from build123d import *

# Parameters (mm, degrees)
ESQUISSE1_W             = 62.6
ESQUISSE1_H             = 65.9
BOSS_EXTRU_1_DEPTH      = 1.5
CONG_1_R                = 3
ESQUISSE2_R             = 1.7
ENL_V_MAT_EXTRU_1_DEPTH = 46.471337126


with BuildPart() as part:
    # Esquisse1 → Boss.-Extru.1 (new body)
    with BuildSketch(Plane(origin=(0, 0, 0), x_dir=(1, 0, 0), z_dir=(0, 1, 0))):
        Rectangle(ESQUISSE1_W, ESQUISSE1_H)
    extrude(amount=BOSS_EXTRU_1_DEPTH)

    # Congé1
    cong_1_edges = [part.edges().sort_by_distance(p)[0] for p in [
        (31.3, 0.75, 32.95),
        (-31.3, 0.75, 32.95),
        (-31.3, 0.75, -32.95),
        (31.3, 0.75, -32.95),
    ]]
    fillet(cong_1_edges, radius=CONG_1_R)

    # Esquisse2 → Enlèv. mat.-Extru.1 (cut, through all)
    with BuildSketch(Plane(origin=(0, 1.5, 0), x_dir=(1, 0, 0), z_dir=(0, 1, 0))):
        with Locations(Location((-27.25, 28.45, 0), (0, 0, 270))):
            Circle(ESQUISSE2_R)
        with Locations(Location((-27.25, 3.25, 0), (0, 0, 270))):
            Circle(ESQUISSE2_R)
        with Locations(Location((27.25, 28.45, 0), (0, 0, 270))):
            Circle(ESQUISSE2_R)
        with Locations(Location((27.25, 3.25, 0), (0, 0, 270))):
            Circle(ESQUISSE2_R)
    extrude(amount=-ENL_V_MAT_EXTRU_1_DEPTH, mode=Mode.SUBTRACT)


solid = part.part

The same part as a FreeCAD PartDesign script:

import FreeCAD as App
import Part
import Sketcher
Q = App.Units.Quantity


def edges_at(feature, points):
    """Names of the edges that pass closest to the given points."""
    edges = feature.Shape.Edges
    near = lambda p: min(range(len(edges)), key=lambda i: edges[i].distToShape(Part.Vertex(*p))[0])
    return sorted({f"Edge{near(p) + 1}" for p in points})


def add_polygon(sketch, points):
    """Adds a closed chain of lines whose ends are joined by coincident constraints."""
    first, n = sketch.GeometryCount, len(points)
    for a, b in zip(points, points[1:] + points[:1]):
        sketch.addGeometry(Part.LineSegment(App.Vector(*a, 0), App.Vector(*b, 0)), False)
    for i in range(n):
        sketch.addConstraint(Sketcher.Constraint("Coincident", first + i, 2, first + (i + 1) % n, 1))

doc = App.newDocument("Part")
params = doc.addObject("Spreadsheet::Sheet", "Params")
for row, (alias, value) in enumerate([
    ("sketch1_width", "62.6 mm"),
    ("sketch1_height", "65.9 mm"),
    ("pad1_length", "1.5 mm"),
    ("fillet_radius", "3 mm"),
    ("sketch2_diameter", "3.4 mm"),
], start=1):
    params.set(f"A{row}", alias)
    params.set(f"B{row}", "=" + value)
    params.setAlias(f"B{row}", alias)

body = doc.addObject("PartDesign::Body", "Body")

# Sketch on XZ plane
sketch1 = body.newObject("Sketcher::SketchObject", "Sketch")
sketch1.AttachmentSupport = (doc.getObject("XZ_Plane"), [""])
sketch1.MapMode = "FlatFace"
add_polygon(sketch1, [(-31, -33), (-31, 33), (31, 33), (31, -33)])  # lines 0-3
sketch1.addConstraint(Sketcher.Constraint("Vertical", 0))
sketch1.addConstraint(Sketcher.Constraint("Horizontal", 1))
sketch1.addConstraint(Sketcher.Constraint("Vertical", 2))
sketch1.addConstraint(Sketcher.Constraint("Horizontal", 3))
sketch1.addConstraint(Sketcher.Constraint("Symmetric", 0, 2, 2, 2, -1, 1))
sketch1.addConstraint(Sketcher.Constraint("DistanceX", 1, 1, 1, 2, Q("62.6 mm")))
sketch1.addConstraint(Sketcher.Constraint("DistanceY", 0, 1, 0, 2, Q("65.9 mm")))
sketch1.setExpression("Constraints[9]", "Params.sketch1_width")
sketch1.setExpression("Constraints[10]", "Params.sketch1_height")
pad1 = body.newObject("PartDesign::Pad", "Pad")
pad1.Profile = sketch1
pad1.setExpression("Length", "Params.pad1_length")
pad1.Reversed = True
doc.recompute()

fillet = body.newObject("PartDesign::Fillet", "Fillet")
fillet.Base = (pad1, edges_at(pad1, [
    (31.3, 0.75, 32.95),
    (-31.3, 0.75, 32.95),
    (-31.3, 0.75, -32.95),
    (31.3, 0.75, -32.95),
]))
fillet.setExpression("Radius", "Params.fillet_radius")

# Sketch on XZ plane
sketch2 = body.newObject("Sketcher::SketchObject", "Sketch001")
sketch2.AttachmentSupport = (doc.getObject("XZ_Plane"), [""])
sketch2.MapMode = "FlatFace"
sketch2.AttachmentOffset = App.Placement(App.Vector(0, 0, -1.5), App.Rotation())
sketch2.addGeometry(Part.Circle(App.Vector(-27.2, -28.4, 0), App.Vector(0, 0, 1), 1.7), False)
sketch2.addGeometry(Part.Circle(App.Vector(-27.2, -3.2, 0), App.Vector(0, 0, 1), 1.7), False)
sketch2.addGeometry(Part.Circle(App.Vector(27.2, -28.4, 0), App.Vector(0, 0, 1), 1.7), False)
sketch2.addGeometry(Part.Circle(App.Vector(27.2, -3.2, 0), App.Vector(0, 0, 1), 1.7), False)
sketch2.addConstraint(Sketcher.Constraint("Equal", 0, 1))
sketch2.addConstraint(Sketcher.Constraint("Equal", 1, 2))
sketch2.addConstraint(Sketcher.Constraint("Equal", 2, 3))
sketch2.addConstraint(Sketcher.Constraint("Symmetric", 0, 3, 2, 3, -2))
sketch2.addConstraint(Sketcher.Constraint("Symmetric", 1, 3, 3, 3, -2))
sketch2.addConstraint(Sketcher.Constraint("Vertical", 0, 3, 1, 3))
sketch2.addConstraint(Sketcher.Constraint("Diameter", 0, Q("3.4 mm")))
sketch2.addConstraint(Sketcher.Constraint("DistanceY", 0, 3, 1, 3, Q("25.2 mm")))
sketch2.addConstraint(Sketcher.Constraint("DistanceX", 0, 3, 2, 3, Q("54.5 mm")))
sketch2.addConstraint(Sketcher.Constraint("DistanceY", 0, 3, -1, 1, Q("28.45 mm")))
sketch2.setExpression("Constraints[6]", "Params.sketch2_diameter")
pocket1 = body.newObject("PartDesign::Pocket", "Pocket")
pocket1.Profile = sketch2
pocket1.Type = "ThroughAll"
pocket1.Reversed = True

doc.recompute()
